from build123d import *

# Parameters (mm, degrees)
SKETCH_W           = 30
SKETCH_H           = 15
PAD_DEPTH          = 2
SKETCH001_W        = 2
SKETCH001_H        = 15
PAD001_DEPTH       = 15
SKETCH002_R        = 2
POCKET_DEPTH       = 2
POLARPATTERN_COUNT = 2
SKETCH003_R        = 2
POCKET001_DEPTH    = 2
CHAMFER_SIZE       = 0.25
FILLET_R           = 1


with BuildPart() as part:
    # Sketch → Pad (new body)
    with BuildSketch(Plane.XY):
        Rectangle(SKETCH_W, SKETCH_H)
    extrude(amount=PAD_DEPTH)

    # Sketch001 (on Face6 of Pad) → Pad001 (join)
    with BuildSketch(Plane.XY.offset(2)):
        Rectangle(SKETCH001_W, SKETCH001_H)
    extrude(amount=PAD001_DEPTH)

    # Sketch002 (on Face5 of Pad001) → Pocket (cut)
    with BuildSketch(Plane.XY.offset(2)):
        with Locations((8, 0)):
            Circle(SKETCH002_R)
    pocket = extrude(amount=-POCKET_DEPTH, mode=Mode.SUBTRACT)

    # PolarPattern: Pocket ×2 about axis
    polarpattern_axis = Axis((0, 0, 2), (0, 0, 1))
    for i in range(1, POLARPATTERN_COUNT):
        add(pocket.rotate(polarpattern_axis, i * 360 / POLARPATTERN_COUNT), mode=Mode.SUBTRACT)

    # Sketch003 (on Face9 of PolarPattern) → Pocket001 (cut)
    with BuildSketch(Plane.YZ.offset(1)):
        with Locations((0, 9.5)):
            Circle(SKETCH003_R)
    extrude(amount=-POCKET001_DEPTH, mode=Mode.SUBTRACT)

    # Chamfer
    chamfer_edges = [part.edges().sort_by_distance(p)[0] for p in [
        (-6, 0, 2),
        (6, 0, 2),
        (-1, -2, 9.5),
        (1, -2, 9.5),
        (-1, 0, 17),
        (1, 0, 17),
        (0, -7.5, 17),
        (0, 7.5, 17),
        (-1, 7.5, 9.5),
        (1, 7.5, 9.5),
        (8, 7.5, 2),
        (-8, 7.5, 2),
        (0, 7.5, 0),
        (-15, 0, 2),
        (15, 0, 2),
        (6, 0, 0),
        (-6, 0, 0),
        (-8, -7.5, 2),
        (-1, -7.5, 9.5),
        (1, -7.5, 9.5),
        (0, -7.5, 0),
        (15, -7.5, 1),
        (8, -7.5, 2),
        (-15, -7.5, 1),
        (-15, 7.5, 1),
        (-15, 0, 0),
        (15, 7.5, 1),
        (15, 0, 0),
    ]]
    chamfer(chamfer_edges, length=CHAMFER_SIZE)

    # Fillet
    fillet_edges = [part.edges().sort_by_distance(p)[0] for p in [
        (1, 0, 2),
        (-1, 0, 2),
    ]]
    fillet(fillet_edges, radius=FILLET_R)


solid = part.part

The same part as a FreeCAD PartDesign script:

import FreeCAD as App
import Part
import Sketcher

V = App.Vector


def edges_at(feature, points):
    """Names of the edges that pass closest to the given points."""
    edges = feature.Shape.Edges
    near = lambda p: min(range(len(edges)), key=lambda i: edges[i].distToShape(Part.Vertex(*p))[0])
    return sorted({f"Edge{near(p) + 1}" for p in points})

doc = App.newDocument("Part")
body = doc.addObject("PartDesign::Body", "Body")

# Sketch on XY plane
sketch1 = body.newObject("Sketcher::SketchObject", "Sketch")
sketch1.AttachmentSupport = (doc.getObject("XY_Plane"), [""])
sketch1.MapMode = "FlatFace"
sketch1.addGeometry(Part.LineSegment(V(-15, 8, 0), V(-15, -8, 0)), False)
sketch1.addGeometry(Part.LineSegment(V(-15, -8, 0), V(15, -8, 0)), False)
sketch1.addGeometry(Part.LineSegment(V(15, -8, 0), V(15, 8, 0)), False)
sketch1.addGeometry(Part.LineSegment(V(15, 8, 0), V(-15, 8, 0)), False)
sketch1.addConstraint(Sketcher.Constraint("Coincident", 0, 2, 1, 1))
sketch1.addConstraint(Sketcher.Constraint("Coincident", 1, 2, 2, 1))
sketch1.addConstraint(Sketcher.Constraint("Coincident", 2, 2, 3, 1))
sketch1.addConstraint(Sketcher.Constraint("Coincident", 3, 2, 0, 1))
sketch1.addConstraint(Sketcher.Constraint("Vertical", 0))
sketch1.addConstraint(Sketcher.Constraint("Horizontal", 1))
sketch1.addConstraint(Sketcher.Constraint("Vertical", 2))
sketch1.addConstraint(Sketcher.Constraint("Horizontal", 3))
sketch1.addConstraint(Sketcher.Constraint("Symmetric", 0, 2, 2, 2, -1, 1))
sketch1.addConstraint(Sketcher.Constraint("DistanceX", 1, 1, 1, 2, 30.0))
sketch1.addConstraint(Sketcher.Constraint("DistanceY", 0, 2, 0, 1, 15.0))
pad1 = body.newObject("PartDesign::Pad", "Pad")
pad1.Profile = sketch1
pad1.Length = 2

# Sketch on XY plane
sketch2 = body.newObject("Sketcher::SketchObject", "Sketch001")
sketch2.AttachmentSupport = (doc.getObject("XY_Plane"), [""])
sketch2.MapMode = "FlatFace"
sketch2.AttachmentOffset = App.Placement(V(0, 0, 2), App.Rotation())
sketch2.addGeometry(Part.LineSegment(V(-1, 7.5, 0), V(-1, -7.5, 0)), False)
sketch2.addGeometry(Part.LineSegment(V(-1, -7.5, 0), V(1, -7.5, 0)), False)
sketch2.addGeometry(Part.LineSegment(V(1, -7.5, 0), V(1, 7.5, 0)), False)
sketch2.addGeometry(Part.LineSegment(V(1, 7.5, 0), V(-1, 7.5, 0)), False)
sketch2.addConstraint(Sketcher.Constraint("Coincident", 0, 2, 1, 1))
sketch2.addConstraint(Sketcher.Constraint("Coincident", 1, 2, 2, 1))
sketch2.addConstraint(Sketcher.Constraint("Coincident", 2, 2, 3, 1))
sketch2.addConstraint(Sketcher.Constraint("Coincident", 3, 2, 0, 1))
sketch2.addConstraint(Sketcher.Constraint("Vertical", 0))
sketch2.addConstraint(Sketcher.Constraint("Horizontal", 1))
sketch2.addConstraint(Sketcher.Constraint("Vertical", 2))
sketch2.addConstraint(Sketcher.Constraint("Horizontal", 3))
sketch2.addConstraint(Sketcher.Constraint("Symmetric", 0, 2, 2, 2, -1, 1))
sketch2.addConstraint(Sketcher.Constraint("DistanceX", 1, 1, 1, 2, 2.0))
sketch2.addConstraint(Sketcher.Constraint("DistanceY", 0, 2, 0, 1, 15.0))
pad2 = body.newObject("PartDesign::Pad", "Pad001")
pad2.Profile = sketch2
pad2.Length = 15

# Sketch on XY plane
sketch3 = body.newObject("Sketcher::SketchObject", "Sketch002")
sketch3.AttachmentSupport = (doc.getObject("XY_Plane"), [""])
sketch3.MapMode = "FlatFace"
sketch3.AttachmentOffset = App.Placement(V(0, 0, 2), App.Rotation())
sketch3.addGeometry(Part.Circle(V(8, 0, 0), V(0, 0, 1), 2), False)
sketch3.addConstraint(Sketcher.Constraint("PointOnObject", 0, 3, -1))
sketch3.addConstraint(Sketcher.Constraint("Diameter", 0, 4.0))
sketch3.addConstraint(Sketcher.Constraint("DistanceX", -1, 1, 0, 3, 8.0))
pocket1 = body.newObject("PartDesign::Pocket", "Pocket")
pocket1.Profile = sketch3
pocket1.Length = 2
doc.recompute()

polarpattern = body.newObject("PartDesign::PolarPattern", "PolarPattern")
polarpattern.Originals = [pocket1]
polarpattern.Axis = (doc.getObject("Z_Axis"), [""])
polarpattern.Angle = 360
polarpattern.Occurrences = 2
body.Tip = polarpattern

# Sketch on YZ plane
sketch4 = body.newObject("Sketcher::SketchObject", "Sketch003")
sketch4.AttachmentSupport = (doc.getObject("YZ_Plane"), [""])
sketch4.MapMode = "FlatFace"
sketch4.AttachmentOffset = App.Placement(V(0, 0, 1), App.Rotation())
sketch4.addGeometry(Part.Circle(V(0, 9.5, 0), V(0, 0, 1), 2), False)
sketch4.addConstraint(Sketcher.Constraint("PointOnObject", 0, 3, -2))
sketch4.addConstraint(Sketcher.Constraint("Diameter", 0, 4.0))
sketch4.addConstraint(Sketcher.Constraint("DistanceY", -1, 1, 0, 3, 9.5))
pocket2 = body.newObject("PartDesign::Pocket", "Pocket001")
pocket2.Profile = sketch4
pocket2.Length = 2
doc.recompute()

chamfer = body.newObject("PartDesign::Chamfer", "Chamfer")
chamfer.Base = (pocket2, edges_at(pocket2, [
    (-6, 0, 2),
    (6, 0, 2),
    (-1, -2, 9.5),
    (1, -2, 9.5),
    (-1, 0, 17),
    (1, 0, 17),
    (0, -7.5, 17),
    (0, 7.5, 17),
    (-1, 7.5, 9.5),
    (1, 7.5, 9.5),
    (8, 7.5, 2),
    (-8, 7.5, 2),
    (0, 7.5, 0),
    (-15, 0, 2),
    (15, 0, 2),
    (6, 0, 0),
    (-6, 0, 0),
    (-8, -7.5, 2),
    (-1, -7.5, 9.5),
    (1, -7.5, 9.5),
    (0, -7.5, 0),
    (15, -7.5, 1),
    (8, -7.5, 2),
    (-15, -7.5, 1),
    (-15, 7.5, 1),
    (-15, 0, 0),
    (15, 7.5, 1),
    (15, 0, 0),
]))
chamfer.Size = 0.25
doc.recompute()

fillet = body.newObject("PartDesign::Fillet", "Fillet")
fillet.Base = (chamfer, edges_at(chamfer, [(1, 0, 2), (-1, 0, 2)]))
fillet.Radius = 1

doc.recompute()
